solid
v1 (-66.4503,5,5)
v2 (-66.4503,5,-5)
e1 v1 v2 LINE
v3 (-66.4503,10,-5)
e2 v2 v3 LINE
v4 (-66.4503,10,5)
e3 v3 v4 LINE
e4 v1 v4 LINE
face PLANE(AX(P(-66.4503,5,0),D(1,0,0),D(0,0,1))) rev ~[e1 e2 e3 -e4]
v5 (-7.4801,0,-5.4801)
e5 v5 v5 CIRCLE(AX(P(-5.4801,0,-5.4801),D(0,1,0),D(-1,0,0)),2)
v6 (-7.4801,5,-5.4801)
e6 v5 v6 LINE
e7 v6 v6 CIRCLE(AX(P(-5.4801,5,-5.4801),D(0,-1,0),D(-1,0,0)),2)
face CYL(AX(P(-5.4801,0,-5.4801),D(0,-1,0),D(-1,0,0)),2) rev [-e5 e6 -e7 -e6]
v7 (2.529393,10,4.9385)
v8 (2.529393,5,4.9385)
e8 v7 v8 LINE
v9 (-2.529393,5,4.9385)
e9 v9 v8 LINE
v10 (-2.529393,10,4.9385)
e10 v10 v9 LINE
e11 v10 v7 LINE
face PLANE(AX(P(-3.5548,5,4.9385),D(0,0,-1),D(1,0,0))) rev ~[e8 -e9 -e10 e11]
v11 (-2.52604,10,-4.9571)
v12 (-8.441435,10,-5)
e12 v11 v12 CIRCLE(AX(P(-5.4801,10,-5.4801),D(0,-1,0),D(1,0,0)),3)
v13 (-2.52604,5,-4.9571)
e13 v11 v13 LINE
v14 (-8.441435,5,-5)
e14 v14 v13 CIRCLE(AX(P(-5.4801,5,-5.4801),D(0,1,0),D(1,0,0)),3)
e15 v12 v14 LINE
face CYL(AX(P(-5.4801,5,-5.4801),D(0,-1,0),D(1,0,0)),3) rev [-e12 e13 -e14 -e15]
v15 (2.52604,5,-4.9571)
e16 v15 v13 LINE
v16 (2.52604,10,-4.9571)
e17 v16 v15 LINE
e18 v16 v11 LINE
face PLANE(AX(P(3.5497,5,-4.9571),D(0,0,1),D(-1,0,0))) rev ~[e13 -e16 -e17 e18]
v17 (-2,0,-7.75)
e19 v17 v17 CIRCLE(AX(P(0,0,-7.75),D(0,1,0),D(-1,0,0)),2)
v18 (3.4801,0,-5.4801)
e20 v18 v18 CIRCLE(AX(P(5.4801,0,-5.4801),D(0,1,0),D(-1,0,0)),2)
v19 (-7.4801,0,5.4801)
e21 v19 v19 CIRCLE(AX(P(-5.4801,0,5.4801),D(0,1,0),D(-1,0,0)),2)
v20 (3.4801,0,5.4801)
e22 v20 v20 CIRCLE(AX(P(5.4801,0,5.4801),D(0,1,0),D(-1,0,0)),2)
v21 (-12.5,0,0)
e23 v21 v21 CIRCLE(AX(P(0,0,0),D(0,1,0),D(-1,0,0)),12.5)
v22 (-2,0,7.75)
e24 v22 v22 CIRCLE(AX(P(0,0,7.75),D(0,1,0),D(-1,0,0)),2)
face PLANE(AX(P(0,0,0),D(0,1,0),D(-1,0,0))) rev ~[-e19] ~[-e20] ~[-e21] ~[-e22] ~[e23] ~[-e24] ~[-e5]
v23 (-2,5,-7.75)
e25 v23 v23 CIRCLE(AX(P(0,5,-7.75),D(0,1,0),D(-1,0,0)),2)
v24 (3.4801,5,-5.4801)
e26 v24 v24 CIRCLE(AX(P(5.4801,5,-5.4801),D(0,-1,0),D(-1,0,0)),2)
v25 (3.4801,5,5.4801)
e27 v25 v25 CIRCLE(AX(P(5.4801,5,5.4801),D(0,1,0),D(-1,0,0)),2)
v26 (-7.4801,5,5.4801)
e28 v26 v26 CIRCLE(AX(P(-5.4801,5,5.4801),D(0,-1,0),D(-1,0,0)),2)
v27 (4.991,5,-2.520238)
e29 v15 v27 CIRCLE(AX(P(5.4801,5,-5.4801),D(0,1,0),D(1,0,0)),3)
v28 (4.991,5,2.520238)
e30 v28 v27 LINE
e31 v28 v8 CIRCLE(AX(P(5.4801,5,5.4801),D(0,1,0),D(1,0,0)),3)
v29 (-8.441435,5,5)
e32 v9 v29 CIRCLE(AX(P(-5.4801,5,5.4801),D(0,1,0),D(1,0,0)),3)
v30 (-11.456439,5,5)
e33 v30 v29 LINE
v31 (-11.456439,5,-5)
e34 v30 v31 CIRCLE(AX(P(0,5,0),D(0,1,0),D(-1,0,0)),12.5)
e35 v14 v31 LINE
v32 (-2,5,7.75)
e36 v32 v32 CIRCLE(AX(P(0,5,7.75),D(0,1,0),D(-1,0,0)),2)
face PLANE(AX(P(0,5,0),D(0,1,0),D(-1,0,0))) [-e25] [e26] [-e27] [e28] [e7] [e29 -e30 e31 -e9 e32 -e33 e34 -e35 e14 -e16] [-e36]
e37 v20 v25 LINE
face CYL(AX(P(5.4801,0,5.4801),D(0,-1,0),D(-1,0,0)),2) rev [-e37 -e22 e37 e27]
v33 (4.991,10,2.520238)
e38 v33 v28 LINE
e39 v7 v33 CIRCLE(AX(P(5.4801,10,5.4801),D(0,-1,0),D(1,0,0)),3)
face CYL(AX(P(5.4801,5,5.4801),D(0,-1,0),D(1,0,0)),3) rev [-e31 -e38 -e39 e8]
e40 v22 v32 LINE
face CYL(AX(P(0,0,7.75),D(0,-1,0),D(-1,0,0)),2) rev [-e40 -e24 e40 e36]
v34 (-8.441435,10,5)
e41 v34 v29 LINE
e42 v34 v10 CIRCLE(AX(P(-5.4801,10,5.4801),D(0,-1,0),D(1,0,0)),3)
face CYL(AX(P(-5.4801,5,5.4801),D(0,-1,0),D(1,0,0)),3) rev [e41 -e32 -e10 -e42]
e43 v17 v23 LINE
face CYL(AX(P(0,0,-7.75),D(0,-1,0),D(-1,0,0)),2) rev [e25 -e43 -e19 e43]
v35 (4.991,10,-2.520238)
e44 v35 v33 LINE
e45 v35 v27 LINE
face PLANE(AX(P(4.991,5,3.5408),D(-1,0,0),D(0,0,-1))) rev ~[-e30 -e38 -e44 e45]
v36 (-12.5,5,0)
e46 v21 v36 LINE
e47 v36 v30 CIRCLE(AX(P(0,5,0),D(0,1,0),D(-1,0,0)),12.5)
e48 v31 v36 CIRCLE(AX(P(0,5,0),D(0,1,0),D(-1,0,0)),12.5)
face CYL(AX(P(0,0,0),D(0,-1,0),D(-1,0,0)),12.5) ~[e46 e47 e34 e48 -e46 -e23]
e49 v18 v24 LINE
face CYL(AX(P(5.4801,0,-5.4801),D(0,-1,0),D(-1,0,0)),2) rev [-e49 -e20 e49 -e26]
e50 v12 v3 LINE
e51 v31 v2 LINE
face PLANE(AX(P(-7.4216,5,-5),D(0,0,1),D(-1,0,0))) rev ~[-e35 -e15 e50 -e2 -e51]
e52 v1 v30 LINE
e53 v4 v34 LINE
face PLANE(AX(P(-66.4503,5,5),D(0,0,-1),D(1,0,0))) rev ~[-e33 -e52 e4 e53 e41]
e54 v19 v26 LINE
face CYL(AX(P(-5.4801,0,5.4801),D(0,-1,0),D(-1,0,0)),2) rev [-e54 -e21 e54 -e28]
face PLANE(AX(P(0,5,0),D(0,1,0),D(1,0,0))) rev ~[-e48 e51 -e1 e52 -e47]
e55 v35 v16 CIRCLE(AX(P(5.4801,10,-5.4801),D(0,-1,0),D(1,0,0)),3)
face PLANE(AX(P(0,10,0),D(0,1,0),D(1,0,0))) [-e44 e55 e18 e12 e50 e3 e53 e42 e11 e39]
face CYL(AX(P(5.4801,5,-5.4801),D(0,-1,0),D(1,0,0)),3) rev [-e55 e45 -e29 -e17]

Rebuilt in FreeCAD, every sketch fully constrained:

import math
import FreeCAD as App
import Part
import Sketcher

doc = App.newDocument("Part")
body = doc.addObject("PartDesign::Body", "Body")

sketch1 = doc.addObject("Sketcher::SketchObject", "Sketch")
body.addObject(sketch1)
sketch1.AttachmentSupport = (doc.XZ_Plane, [""])
sketch1.MapMode = "FlatFace"
sketch1.addGeometry(Part.Circle(App.Vector(0, 0, 0), App.Vector(0, 0, 1), 12.5), False)
sketch1.addGeometry(Part.Circle(App.Vector(5.4801, -5.4801, 0), App.Vector(0, 0, 1), 2), False)
sketch1.addGeometry(Part.Circle(App.Vector(0, -7.75, 0), App.Vector(0, 0, 1), 2), False)
sketch1.addGeometry(Part.Circle(App.Vector(-5.4801, -5.4801, 0), App.Vector(0, 0, 1), 2), False)
sketch1.addGeometry(Part.Circle(App.Vector(5.4801, 5.4801, 0), App.Vector(0, 0, 1), 2), False)
sketch1.addGeometry(Part.Circle(App.Vector(-5.4801, 5.4801, 0), App.Vector(0, 0, 1), 2), False)
sketch1.addGeometry(Part.Circle(App.Vector(0, 7.75, 0), App.Vector(0, 0, 1), 2), False)
sketch1.addConstraint(Sketcher.Constraint("Coincident", 0, 3, -1, 1))
sketch1.addConstraint(Sketcher.Constraint("Equal", 1, 2))
sketch1.addConstraint(Sketcher.Constraint("Equal", 2, 3))
sketch1.addConstraint(Sketcher.Constraint("Equal", 3, 4))
sketch1.addConstraint(Sketcher.Constraint("Equal", 4, 5))
sketch1.addConstraint(Sketcher.Constraint("Equal", 5, 6))
sketch1.addConstraint(Sketcher.Constraint("Symmetric", 3, 3, 4, 3, -1, 1))
sketch1.addConstraint(Sketcher.Constraint("Symmetric", 1, 3, 5, 3, -1, 1))
sketch1.addConstraint(Sketcher.Constraint("Symmetric", 2, 3, 6, 3, -1, 1))
sketch1.addConstraint(Sketcher.Constraint("Symmetric", 1, 3, 3, 3, -2))
sketch1.addConstraint(Sketcher.Constraint("PointOnObject", 2, 3, -2))
sketch1.addConstraint(Sketcher.Constraint("Diameter", 0, 25.0))
sketch1.addConstraint(Sketcher.Constraint("Diameter", 1, 4.0))
sketch1.addConstraint(Sketcher.Constraint("DistanceX", -1, 1, 1, 3, 5.48))
sketch1.addConstraint(Sketcher.Constraint("DistanceY", 1, 3, -1, 1, 5.48))
sketch1.addConstraint(Sketcher.Constraint("DistanceY", 2, 3, -1, 1, 7.75))
pad1 = doc.addObject("PartDesign::Pad", "Pad")
body.addObject(pad1)
pad1.Profile = sketch1
pad1.Length = 5
pad1.Reversed = True

sketch2 = doc.addObject("Sketcher::SketchObject", "Sketch001")
body.addObject(sketch2)
sketch2.AttachmentSupport = (doc.XZ_Plane, [""])
sketch2.MapMode = "FlatFace"
sketch2.AttachmentOffset = App.Placement(App.Vector(0, 0, -5), App.Rotation())
sketch2.addGeometry(Part.ArcOfCircle(Part.Circle(App.Vector(5.4801, 5.4801, 0), App.Vector(0, 0, 1), 2.000026), math.radians(-164.288346), math.radians(-104.155055)), False)
sketch2.addGeometry(Part.LineSegment(App.Vector(4.991, 3.5408, 0), App.Vector(4.991, -3.5408, 0)), False)
sketch2.addGeometry(Part.ArcOfCircle(Part.Circle(App.Vector(5.4801, -5.4801, 0), App.Vector(0, 0, 1), 2), math.radians(104.155055), math.radians(164.840862)), False)
sketch2.addGeometry(Part.LineSegment(App.Vector(3.5497, -4.9571, 0), App.Vector(-3.5497, -4.9571, 0)), False)
sketch2.addGeometry(Part.ArcOfCircle(Part.Circle(App.Vector(-5.4801, -5.4801, 0), App.Vector(0, 0, 1), 2), math.radians(15.159138), math.radians(166.110364)), False)
sketch2.addGeometry(Part.LineSegment(App.Vector(-7.4216, -5, 0), App.Vector(-66.4503, -5, 0)), False)
sketch2.addGeometry(Part.LineSegment(App.Vector(-66.4503, -5, 0), App.Vector(-66.4503, 5, 0)), False)
sketch2.addGeometry(Part.LineSegment(App.Vector(-66.4503, 5, 0), App.Vector(-7.4216, 5, 0)), False)
sketch2.addGeometry(Part.ArcOfCircle(Part.Circle(App.Vector(-5.4801, 5.4801, 0), App.Vector(0, 0, 1), 2.000028), math.radians(-166.110364), math.radians(-15.711654)), False)
sketch2.addGeometry(Part.LineSegment(App.Vector(-3.5548, 4.9385, 0), App.Vector(3.5548, 4.9385, 0)), False)
sketch2.addConstraint(Sketcher.Constraint("Coincident", 0, 2, 1, 1))
sketch2.addConstraint(Sketcher.Constraint("Coincident", 1, 2, 2, 1))
sketch2.addConstraint(Sketcher.Constraint("Coincident", 2, 2, 3, 1))
sketch2.addConstraint(Sketcher.Constraint("Coincident", 3, 2, 4, 1))
sketch2.addConstraint(Sketcher.Constraint("Coincident", 4, 2, 5, 1))
sketch2.addConstraint(Sketcher.Constraint("Coincident", 5, 2, 6, 1))
sketch2.addConstraint(Sketcher.Constraint("Coincident", 6, 2, 7, 1))
sketch2.addConstraint(Sketcher.Constraint("Coincident", 7, 2, 8, 1))
sketch2.addConstraint(Sketcher.Constraint("Coincident", 8, 2, 9, 1))
sketch2.addConstraint(Sketcher.Constraint("Coincident", 9, 2, 0, 1))
sketch2.addConstraint(Sketcher.Constraint("Vertical", 1))
sketch2.addConstraint(Sketcher.Constraint("Horizontal", 3))
sketch2.addConstraint(Sketcher.Constraint("Horizontal", 5))
sketch2.addConstraint(Sketcher.Constraint("Vertical", 6))
sketch2.addConstraint(Sketcher.Constraint("Horizontal", 7))
sketch2.addConstraint(Sketcher.Constraint("Horizontal", 9))
sketch2.addConstraint(Sketcher.Constraint("Equal", 0, 2))
sketch2.addConstraint(Sketcher.Constraint("Equal", 2, 4))
sketch2.addConstraint(Sketcher.Constraint("Equal", 4, 8))
sketch2.addConstraint(Sketcher.Constraint("Symmetric", 0, 3, 4, 3, -1, 1))
sketch2.addConstraint(Sketcher.Constraint("Symmetric", 2, 3, 8, 3, -1, 1))
sketch2.addConstraint(Sketcher.Constraint("Symmetric", 2, 3, 4, 3, -2))
sketch2.addConstraint(Sketcher.Constraint("Vertical", 4, 2, 7, 2))
sketch2.addConstraint(Sketcher.Constraint("Radius", 0, 2.0))
sketch2.addConstraint(Sketcher.Constraint("DistanceY", 6, 1, 6, 2, 10.0))
sketch2.addConstraint(Sketcher.Constraint("DistanceX", 5, 2, 2, 2, 70.0))
sketch2.addConstraint(Sketcher.Constraint("DistanceX", -1, 1, 0, 3, 5.48))
sketch2.addConstraint(Sketcher.Constraint("DistanceY", -1, 1, 0, 3, 5.48))
sketch2.addConstraint(Sketcher.Constraint("DistanceX", 3, 2, 3, 1, 7.0994))
sketch2.addConstraint(Sketcher.Constraint("DistanceX", 9, 1, 9, 2, 7.1096))
sketch2.addConstraint(Sketcher.Constraint("DistanceY", 1, 2, 1, 1, 7.0816))
pad2 = doc.addObject("PartDesign::Pad", "Pad001")
body.addObject(pad2)
pad2.Profile = sketch2
pad2.Length = 5
pad2.Reversed = True

sketch3 = doc.addObject("Sketcher::SketchObject", "Sketch002")
body.addObject(sketch3)
sketch3.AttachmentSupport = (doc.XZ_Plane, [""])
sketch3.MapMode = "FlatFace"
sketch3.AttachmentOffset = App.Placement(App.Vector(0, 0, -5), App.Rotation())
sketch3.addGeometry(Part.Circle(App.Vector(-5.4801, -5.4801, 0), App.Vector(0, 0, 1), 3), False)
sketch3.addGeometry(Part.Circle(App.Vector(-5.4801, 5.4801, 0), App.Vector(0, 0, 1), 3), False)
sketch3.addGeometry(Part.Circle(App.Vector(5.4801, -5.4801, 0), App.Vector(0, 0, 1), 3), False)
sketch3.addGeometry(Part.Circle(App.Vector(5.4801, 5.4801, 0), App.Vector(0, 0, 1), 3), False)
sketch3.addConstraint(Sketcher.Constraint("Equal", 0, 1))
sketch3.addConstraint(Sketcher.Constraint("Equal", 1, 2))
sketch3.addConstraint(Sketcher.Constraint("Equal", 2, 3))
sketch3.addConstraint(Sketcher.Constraint("Symmetric", 1, 3, 2, 3, -1, 1))
sketch3.addConstraint(Sketcher.Constraint("Symmetric", 0, 3, 3, 3, -1, 1))
sketch3.addConstraint(Sketcher.Constraint("Symmetric", 0, 3, 2, 3, -2))
sketch3.addConstraint(Sketcher.Constraint("Diameter", 0, 6.0))
sketch3.addConstraint(Sketcher.Constraint("DistanceX", 0, 3, -1, 1, 5.48))
sketch3.addConstraint(Sketcher.Constraint("DistanceY", 0, 3, -1, 1, 5.48))
pocket1 = doc.addObject("PartDesign::Pocket", "Pocket")
body.addObject(pocket1)
pocket1.Profile = sketch3
pocket1.Length = 39.25

doc.recompute()
